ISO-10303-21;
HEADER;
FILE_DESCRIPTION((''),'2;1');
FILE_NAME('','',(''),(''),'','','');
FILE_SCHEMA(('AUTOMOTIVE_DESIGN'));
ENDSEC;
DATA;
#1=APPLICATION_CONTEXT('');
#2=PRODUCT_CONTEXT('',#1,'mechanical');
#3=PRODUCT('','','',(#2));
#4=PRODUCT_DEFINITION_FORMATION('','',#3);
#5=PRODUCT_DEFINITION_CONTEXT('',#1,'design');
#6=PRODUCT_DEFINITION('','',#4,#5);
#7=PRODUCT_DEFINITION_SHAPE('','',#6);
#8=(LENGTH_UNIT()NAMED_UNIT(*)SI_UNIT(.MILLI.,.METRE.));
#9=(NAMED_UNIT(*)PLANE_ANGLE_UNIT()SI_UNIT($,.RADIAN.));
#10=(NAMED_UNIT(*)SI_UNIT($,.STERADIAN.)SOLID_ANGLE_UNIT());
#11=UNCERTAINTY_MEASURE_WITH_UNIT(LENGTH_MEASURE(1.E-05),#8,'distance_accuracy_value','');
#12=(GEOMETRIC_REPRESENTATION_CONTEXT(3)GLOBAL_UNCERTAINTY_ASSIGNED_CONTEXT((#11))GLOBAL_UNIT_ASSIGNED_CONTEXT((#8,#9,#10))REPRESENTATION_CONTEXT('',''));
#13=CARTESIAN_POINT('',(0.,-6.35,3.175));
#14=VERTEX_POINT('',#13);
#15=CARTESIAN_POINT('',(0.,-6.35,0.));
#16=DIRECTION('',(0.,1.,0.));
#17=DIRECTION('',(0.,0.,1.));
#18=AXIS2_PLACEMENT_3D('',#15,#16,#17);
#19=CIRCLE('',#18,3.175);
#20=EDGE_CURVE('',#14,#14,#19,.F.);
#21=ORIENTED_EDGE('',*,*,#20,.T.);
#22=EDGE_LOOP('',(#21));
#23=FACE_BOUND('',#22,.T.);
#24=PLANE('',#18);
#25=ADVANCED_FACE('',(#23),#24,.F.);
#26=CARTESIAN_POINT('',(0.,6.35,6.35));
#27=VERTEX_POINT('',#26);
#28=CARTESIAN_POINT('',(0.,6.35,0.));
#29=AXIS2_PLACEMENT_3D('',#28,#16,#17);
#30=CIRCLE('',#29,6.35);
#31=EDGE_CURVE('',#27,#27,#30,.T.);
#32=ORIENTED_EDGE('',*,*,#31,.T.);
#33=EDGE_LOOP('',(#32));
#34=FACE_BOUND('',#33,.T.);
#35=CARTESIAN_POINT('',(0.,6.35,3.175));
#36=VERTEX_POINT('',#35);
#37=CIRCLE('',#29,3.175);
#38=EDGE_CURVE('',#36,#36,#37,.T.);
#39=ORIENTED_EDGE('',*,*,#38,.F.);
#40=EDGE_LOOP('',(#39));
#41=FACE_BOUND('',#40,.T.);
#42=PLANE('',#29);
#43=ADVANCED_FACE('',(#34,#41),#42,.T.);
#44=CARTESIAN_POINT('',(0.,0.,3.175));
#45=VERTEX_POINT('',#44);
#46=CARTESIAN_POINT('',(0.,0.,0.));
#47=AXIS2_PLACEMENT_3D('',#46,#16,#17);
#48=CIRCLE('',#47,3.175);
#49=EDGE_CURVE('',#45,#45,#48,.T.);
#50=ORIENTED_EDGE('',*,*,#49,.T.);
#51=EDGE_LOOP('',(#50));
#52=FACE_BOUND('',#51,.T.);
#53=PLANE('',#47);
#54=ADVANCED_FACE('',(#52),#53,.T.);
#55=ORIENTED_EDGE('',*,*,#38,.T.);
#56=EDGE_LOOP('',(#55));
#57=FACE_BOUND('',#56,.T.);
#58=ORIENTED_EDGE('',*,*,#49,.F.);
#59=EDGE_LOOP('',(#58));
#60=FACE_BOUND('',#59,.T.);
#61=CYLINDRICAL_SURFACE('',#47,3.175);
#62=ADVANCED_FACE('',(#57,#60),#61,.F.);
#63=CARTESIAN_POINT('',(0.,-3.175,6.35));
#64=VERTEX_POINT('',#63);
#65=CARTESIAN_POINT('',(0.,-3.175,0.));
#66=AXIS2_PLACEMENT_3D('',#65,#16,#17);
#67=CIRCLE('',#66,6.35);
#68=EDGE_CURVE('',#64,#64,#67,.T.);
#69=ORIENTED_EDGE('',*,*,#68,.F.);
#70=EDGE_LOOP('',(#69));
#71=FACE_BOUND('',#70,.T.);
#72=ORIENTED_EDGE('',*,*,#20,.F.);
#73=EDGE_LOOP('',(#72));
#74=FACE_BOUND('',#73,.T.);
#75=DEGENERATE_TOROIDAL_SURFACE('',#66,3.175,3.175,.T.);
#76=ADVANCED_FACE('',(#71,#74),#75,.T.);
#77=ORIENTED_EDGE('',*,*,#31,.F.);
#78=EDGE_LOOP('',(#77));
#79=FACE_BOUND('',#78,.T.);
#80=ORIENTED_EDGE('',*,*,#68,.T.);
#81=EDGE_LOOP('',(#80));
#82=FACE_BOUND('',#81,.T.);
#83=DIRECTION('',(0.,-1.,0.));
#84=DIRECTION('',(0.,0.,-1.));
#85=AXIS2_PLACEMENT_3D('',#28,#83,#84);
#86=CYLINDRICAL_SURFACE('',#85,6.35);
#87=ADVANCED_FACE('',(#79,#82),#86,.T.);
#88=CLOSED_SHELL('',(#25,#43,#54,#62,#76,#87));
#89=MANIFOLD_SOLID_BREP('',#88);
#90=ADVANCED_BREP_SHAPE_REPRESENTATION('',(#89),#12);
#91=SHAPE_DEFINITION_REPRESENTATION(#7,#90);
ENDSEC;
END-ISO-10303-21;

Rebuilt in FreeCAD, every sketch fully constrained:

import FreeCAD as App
import Part
import Sketcher
Q = App.Units.Quantity


def edges_at(feature, points):
    """Names of the edges that pass closest to the given points."""
    edges = feature.Shape.Edges
    near = lambda p: min(range(len(edges)), key=lambda i: edges[i].distToShape(Part.Vertex(*p))[0])
    return sorted({f"Edge{near(p) + 1}" for p in points})

doc = App.newDocument("Part")
body = doc.addObject("PartDesign::Body", "Body")

# Sketch on XZ plane
sketch1 = doc.addObject("Sketcher::SketchObject", "Sketch")
body.addObject(sketch1)
sketch1.AttachmentSupport = (doc.XZ_Plane, [""])
sketch1.MapMode = "FlatFace"
sketch1.addGeometry(Part.Circle(App.Vector(0, 0, 0), App.Vector(0, 0, 1), 6), False)
sketch1.addConstraint(Sketcher.Constraint("Coincident", 0, 3, -1, 1))
sketch1.addConstraint(Sketcher.Constraint("Diameter", 0, Q("0.5 in")))
pad1 = doc.addObject("PartDesign::Pad", "Pad")
body.addObject(pad1)
pad1.Profile = sketch1
pad1.Length = Q("0.5 in")
pad1.Midplane = True

# Sketch on XZ plane
sketch2 = doc.addObject("Sketcher::SketchObject", "Sketch001")
body.addObject(sketch2)
sketch2.AttachmentSupport = (doc.XZ_Plane, [""])
sketch2.MapMode = "FlatFace"
sketch2.AttachmentOffset = App.Placement(App.Vector(0, 0, -0.25 * 25.4), App.Rotation())
sketch2.addGeometry(Part.Circle(App.Vector(0, 0, 0), App.Vector(0, 0, 1), 3.2), False)
sketch2.addConstraint(Sketcher.Constraint("Coincident", 0, 3, -1, 1))
sketch2.addConstraint(Sketcher.Constraint("Diameter", 0, Q("0.25 in")))
pocket1 = doc.addObject("PartDesign::Pocket", "Pocket")
body.addObject(pocket1)
pocket1.Profile = sketch2
pocket1.Length = Q("0.25 in")
pocket1.Reversed = True
doc.recompute()

fillet = doc.addObject("PartDesign::Fillet", "Fillet")
body.addObject(fillet)
fillet.Base = (pocket1, edges_at(pocket1, [(0, -6.35, -6.35)]))
fillet.Radius = Q("0.125 in")

doc.recompute()
